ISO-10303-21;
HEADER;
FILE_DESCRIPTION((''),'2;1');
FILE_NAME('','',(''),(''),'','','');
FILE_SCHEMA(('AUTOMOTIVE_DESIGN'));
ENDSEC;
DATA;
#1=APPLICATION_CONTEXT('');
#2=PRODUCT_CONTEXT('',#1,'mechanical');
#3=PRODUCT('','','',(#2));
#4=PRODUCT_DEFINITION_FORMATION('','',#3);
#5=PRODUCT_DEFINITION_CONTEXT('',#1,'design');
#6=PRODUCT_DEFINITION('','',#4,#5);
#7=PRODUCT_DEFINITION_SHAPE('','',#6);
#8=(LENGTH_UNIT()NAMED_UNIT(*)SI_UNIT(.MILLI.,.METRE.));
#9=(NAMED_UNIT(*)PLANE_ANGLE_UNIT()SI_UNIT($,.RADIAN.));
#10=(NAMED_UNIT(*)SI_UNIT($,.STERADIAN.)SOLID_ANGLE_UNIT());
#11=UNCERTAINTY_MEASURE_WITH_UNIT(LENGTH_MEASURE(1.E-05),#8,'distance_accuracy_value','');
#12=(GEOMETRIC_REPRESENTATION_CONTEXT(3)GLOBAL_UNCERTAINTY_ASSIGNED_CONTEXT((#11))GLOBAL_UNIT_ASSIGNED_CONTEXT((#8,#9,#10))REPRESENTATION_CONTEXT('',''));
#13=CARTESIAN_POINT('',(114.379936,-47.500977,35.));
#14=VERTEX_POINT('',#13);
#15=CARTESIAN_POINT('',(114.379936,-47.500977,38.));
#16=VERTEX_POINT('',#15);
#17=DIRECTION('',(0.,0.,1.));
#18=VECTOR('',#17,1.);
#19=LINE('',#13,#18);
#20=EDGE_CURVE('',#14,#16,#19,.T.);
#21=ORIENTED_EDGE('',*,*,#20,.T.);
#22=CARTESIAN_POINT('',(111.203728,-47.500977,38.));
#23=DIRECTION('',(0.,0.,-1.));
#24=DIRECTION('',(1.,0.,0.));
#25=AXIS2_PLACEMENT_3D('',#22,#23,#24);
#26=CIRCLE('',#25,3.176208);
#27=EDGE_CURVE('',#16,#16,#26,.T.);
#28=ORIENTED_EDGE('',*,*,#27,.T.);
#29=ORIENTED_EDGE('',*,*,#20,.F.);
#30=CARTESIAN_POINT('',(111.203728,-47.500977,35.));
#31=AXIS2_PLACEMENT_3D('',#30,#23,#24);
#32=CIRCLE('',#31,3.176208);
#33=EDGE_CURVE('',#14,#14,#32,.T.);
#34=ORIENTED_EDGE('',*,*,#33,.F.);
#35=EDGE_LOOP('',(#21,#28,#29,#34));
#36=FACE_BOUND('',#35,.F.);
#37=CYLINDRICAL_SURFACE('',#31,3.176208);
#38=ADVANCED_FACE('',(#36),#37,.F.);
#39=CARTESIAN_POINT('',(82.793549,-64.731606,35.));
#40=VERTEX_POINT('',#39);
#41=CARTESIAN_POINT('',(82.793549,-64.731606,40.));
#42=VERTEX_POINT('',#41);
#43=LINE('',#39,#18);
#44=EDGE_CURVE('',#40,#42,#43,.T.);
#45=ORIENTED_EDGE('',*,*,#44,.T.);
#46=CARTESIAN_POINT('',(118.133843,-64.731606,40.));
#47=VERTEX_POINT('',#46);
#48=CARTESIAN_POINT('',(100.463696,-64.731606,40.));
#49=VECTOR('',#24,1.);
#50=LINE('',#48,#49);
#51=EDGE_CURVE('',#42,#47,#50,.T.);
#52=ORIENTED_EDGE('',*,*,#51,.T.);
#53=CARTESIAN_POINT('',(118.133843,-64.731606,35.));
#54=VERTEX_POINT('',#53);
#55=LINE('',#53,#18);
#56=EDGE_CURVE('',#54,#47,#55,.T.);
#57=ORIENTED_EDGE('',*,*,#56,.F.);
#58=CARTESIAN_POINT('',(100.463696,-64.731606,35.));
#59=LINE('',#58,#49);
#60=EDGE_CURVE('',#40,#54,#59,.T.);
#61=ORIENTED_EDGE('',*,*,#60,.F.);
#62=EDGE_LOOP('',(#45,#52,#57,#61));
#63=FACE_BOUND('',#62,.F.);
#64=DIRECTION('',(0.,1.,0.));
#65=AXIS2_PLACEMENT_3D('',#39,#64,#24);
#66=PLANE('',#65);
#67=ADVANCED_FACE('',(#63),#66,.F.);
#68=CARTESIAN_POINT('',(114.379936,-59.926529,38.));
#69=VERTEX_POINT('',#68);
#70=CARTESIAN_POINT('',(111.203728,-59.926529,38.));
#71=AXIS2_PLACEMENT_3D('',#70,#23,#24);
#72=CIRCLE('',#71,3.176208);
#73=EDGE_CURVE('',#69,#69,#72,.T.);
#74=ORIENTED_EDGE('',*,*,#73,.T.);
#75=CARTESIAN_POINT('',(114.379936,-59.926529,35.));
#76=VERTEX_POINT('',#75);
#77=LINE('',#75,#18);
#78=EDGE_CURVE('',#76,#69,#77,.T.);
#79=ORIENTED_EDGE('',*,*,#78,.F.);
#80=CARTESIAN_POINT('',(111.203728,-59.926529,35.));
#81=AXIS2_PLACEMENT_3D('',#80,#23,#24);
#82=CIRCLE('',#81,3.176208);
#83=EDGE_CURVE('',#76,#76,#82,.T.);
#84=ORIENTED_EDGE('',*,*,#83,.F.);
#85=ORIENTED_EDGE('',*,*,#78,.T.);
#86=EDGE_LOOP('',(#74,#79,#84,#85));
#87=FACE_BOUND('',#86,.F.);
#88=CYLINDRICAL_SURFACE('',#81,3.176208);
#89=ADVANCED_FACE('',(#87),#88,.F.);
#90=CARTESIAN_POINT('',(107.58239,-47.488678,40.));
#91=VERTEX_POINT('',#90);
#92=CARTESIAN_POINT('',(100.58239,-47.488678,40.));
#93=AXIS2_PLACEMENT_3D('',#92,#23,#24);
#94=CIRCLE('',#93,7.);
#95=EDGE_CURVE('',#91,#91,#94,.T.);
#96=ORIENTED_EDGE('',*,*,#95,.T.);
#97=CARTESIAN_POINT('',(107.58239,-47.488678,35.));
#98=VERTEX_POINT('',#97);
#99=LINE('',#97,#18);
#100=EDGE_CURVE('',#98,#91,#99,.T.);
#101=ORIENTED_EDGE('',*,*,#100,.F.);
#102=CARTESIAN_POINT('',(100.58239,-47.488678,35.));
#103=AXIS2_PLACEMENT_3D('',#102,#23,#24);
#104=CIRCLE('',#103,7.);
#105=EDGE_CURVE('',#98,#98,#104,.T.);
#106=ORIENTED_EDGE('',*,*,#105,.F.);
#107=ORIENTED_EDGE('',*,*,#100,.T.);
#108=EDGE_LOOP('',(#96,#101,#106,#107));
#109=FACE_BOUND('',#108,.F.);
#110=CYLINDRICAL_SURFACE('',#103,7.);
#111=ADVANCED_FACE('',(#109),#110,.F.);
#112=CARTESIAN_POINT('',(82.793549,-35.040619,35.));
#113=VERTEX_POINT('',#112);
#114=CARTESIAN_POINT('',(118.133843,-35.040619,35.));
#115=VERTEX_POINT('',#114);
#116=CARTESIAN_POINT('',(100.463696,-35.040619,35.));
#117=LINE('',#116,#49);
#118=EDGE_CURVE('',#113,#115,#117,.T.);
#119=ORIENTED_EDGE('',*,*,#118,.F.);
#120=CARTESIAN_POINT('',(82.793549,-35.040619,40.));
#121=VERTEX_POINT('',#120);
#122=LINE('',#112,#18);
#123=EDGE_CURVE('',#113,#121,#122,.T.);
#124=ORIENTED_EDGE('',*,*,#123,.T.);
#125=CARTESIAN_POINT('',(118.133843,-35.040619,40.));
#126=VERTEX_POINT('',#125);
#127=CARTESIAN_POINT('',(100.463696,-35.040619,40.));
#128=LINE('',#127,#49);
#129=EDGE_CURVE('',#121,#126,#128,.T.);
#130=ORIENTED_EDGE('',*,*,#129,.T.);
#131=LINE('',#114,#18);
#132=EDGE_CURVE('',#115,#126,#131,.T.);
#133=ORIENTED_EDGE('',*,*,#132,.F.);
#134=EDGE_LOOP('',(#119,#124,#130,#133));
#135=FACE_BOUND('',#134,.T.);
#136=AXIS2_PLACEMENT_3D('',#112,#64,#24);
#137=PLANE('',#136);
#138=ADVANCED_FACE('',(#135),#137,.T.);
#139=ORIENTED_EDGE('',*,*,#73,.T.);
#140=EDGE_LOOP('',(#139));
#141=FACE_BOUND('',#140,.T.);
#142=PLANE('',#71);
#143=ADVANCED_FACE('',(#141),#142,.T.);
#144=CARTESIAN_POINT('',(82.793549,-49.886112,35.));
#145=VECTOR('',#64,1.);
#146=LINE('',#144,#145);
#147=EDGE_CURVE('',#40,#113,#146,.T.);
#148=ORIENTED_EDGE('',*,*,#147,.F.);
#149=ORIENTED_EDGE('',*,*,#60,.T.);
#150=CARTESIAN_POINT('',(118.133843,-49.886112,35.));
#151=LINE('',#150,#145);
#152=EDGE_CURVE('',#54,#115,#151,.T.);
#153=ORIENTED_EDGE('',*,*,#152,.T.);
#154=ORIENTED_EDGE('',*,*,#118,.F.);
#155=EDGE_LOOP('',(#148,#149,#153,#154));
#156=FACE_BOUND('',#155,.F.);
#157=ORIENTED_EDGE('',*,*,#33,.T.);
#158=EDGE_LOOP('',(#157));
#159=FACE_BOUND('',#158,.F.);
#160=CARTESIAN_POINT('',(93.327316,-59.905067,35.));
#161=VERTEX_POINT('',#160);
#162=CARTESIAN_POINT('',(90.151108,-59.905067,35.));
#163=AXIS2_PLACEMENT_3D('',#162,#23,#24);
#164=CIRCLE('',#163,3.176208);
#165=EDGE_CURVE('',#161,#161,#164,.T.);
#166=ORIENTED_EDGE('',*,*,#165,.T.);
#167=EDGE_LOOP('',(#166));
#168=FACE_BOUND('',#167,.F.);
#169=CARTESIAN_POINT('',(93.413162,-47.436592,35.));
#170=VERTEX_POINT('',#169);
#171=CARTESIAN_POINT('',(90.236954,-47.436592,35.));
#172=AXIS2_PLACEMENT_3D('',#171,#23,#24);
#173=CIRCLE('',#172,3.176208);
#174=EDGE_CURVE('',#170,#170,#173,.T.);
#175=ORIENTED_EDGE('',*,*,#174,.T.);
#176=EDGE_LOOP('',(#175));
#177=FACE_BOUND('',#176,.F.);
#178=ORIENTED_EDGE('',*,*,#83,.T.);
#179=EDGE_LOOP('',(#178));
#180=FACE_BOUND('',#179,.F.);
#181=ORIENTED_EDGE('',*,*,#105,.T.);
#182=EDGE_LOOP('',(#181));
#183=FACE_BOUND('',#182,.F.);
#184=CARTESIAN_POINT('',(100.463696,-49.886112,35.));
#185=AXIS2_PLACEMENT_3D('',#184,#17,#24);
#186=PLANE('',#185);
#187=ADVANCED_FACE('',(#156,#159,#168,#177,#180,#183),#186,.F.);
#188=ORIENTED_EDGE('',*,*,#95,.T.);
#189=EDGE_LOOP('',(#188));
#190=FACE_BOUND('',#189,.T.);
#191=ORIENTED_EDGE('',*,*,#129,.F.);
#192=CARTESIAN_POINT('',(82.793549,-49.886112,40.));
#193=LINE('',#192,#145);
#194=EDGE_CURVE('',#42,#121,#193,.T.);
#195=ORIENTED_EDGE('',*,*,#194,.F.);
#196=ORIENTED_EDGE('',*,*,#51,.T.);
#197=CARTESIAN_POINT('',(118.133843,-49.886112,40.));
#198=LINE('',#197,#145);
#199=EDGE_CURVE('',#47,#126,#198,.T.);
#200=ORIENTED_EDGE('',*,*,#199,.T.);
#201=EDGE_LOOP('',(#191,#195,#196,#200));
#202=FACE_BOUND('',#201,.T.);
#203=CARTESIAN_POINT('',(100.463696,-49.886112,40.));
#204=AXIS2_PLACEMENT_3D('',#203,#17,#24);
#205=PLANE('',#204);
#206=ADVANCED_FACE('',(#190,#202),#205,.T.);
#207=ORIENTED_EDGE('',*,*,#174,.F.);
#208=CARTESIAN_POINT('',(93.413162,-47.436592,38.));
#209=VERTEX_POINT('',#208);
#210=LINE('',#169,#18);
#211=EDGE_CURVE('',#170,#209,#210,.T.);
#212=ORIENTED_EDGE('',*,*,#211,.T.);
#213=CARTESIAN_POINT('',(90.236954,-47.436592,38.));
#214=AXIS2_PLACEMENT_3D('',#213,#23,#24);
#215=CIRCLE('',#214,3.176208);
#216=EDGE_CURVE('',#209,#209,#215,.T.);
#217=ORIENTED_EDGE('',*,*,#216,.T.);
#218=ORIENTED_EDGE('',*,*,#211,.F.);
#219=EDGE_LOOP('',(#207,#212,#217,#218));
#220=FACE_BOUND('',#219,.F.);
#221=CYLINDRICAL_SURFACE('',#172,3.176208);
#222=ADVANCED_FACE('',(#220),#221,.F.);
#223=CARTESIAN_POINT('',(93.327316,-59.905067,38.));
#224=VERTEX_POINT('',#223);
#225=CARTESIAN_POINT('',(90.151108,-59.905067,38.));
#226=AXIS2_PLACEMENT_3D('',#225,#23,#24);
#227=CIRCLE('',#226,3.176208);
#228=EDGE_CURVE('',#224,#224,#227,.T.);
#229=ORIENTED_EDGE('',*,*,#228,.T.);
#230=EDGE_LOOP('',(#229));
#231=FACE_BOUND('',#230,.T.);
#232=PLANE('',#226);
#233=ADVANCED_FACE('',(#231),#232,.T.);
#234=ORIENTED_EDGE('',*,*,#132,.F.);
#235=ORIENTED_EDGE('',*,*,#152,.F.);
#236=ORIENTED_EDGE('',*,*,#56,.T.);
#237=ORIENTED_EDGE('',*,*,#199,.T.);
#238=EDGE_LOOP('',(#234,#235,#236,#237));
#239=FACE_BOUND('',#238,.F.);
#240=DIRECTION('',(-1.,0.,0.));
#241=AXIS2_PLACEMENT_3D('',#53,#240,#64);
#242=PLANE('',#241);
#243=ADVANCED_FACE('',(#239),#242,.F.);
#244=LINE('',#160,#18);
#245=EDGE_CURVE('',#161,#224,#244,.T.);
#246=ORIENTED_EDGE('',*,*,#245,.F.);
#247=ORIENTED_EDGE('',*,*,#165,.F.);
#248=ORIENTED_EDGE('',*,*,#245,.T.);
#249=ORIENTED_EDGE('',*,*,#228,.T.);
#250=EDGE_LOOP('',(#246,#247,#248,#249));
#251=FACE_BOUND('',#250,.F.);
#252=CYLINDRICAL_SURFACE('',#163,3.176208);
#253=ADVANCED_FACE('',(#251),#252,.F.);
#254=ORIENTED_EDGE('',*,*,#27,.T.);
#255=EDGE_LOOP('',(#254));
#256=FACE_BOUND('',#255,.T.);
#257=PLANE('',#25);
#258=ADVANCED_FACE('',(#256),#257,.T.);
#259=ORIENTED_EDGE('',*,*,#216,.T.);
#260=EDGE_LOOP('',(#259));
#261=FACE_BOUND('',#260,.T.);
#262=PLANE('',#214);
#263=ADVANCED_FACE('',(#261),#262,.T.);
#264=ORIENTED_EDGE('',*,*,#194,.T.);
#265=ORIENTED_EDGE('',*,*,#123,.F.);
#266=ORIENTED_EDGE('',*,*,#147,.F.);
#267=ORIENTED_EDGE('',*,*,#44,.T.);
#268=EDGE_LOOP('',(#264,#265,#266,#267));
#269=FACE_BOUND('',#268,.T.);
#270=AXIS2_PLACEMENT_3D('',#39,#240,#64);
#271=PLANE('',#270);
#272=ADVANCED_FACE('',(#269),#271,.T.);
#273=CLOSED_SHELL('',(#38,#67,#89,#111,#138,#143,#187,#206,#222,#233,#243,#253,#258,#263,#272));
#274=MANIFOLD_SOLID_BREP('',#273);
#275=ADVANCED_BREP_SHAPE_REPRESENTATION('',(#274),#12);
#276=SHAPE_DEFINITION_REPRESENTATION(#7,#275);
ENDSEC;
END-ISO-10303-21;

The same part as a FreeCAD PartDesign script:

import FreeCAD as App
import Part
import Sketcher
from FreeCAD import Vector

doc = App.newDocument("Part")
body = doc.addObject("PartDesign::Body", "Body")

# Sketch on XY plane
sketch1 = body.newObject("Sketcher::SketchObject", "Sketch")
sketch1.AttachmentSupport = (doc.getObject("XY_Plane"), [""])
sketch1.MapMode = "FlatFace"
sketch1.addGeometry([
    Part.LineSegment(Vector(82.793549, -35.040619, 0), Vector(82.793549, -64.731606, 0)),
    Part.LineSegment(Vector(82.793549, -64.731606, 0), Vector(118.133843, -64.731606, 0)),
    Part.LineSegment(Vector(118.133843, -64.731606, 0), Vector(118.133843, -35.040619, 0)),
    Part.LineSegment(Vector(118.133843, -35.040619, 0), Vector(82.793549, -35.040619, 0)),
], False)
sketch1.addConstraint([
    Sketcher.Constraint("Coincident", 0, 2, 1, 1),
    Sketcher.Constraint("Coincident", 1, 2, 2, 1),
    Sketcher.Constraint("Coincident", 2, 2, 3, 1),
    Sketcher.Constraint("Coincident", 3, 2, 0, 1),
    Sketcher.Constraint("Vertical", 0),
    Sketcher.Constraint("Horizontal", 1),
    Sketcher.Constraint("Vertical", 2),
    Sketcher.Constraint("Horizontal", 3),
    Sketcher.Constraint("DistanceX", 1, 1, 1, 2, 35.340293),
    Sketcher.Constraint("DistanceY", 0, 2, 0, 1, 29.690987),
    Sketcher.Constraint("DistanceX", -1, 1, 0, 2, 82.793549),
    Sketcher.Constraint("DistanceY", 2, 2, -1, 1, 35.040619),
])
pad1 = body.newObject("PartDesign::Pad", "Pad")
pad1.Profile = sketch1
pad1.Length = 5

# Sketch on XY plane
sketch2 = body.newObject("Sketcher::SketchObject", "Sketch001")
sketch2.AttachmentSupport = (doc.getObject("XY_Plane"), [""])
sketch2.MapMode = "FlatFace"
sketch2.addGeometry([
    Part.Circle(Vector(90.151108, -59.905067, 0), Vector(0, 0, 1), 3.176208),
    Part.Circle(Vector(90.236954, -47.436592, 0), Vector(0, 0, 1), 3.176208),
    Part.Circle(Vector(111.203728, -59.926529, 0), Vector(0, 0, 1), 3.176208),
    Part.Circle(Vector(111.203728, -47.500977, 0), Vector(0, 0, 1), 3.176208),
], False)
sketch2.addConstraint([
    Sketcher.Constraint("Equal", 0, 1),
    Sketcher.Constraint("Equal", 1, 2),
    Sketcher.Constraint("Equal", 2, 3),
    Sketcher.Constraint("Vertical", 2, 3, 3, 3),
    Sketcher.Constraint("Diameter", 0, 6.352416),
    Sketcher.Constraint("DistanceY", 1, 3, -1, 1, 47.436592),
    Sketcher.Constraint("DistanceX", -1, 1, 2, 3, 111.203728),
    Sketcher.Constraint("DistanceY", 2, 3, -1, 1, 59.926529),
    Sketcher.Constraint("DistanceX", 0, 3, 2, 3, 21.05262),
    Sketcher.Constraint("DistanceY", 2, 3, 0, 3, 0.021462),
    Sketcher.Constraint("DistanceY", 0, 3, 3, 3, 12.40409),
    Sketcher.Constraint("DistanceX", -1, 1, 1, 3, 90.236954),
])
pocket1 = body.newObject("PartDesign::Pocket", "Pocket")
pocket1.Profile = sketch2
pocket1.Length = 3
pocket1.Reversed = True

# Sketch on XY plane
sketch3 = body.newObject("Sketcher::SketchObject", "Sketch002")
sketch3.AttachmentSupport = (doc.getObject("XY_Plane"), [""])
sketch3.MapMode = "FlatFace"
sketch3.addGeometry(Part.Circle(Vector(100.58239, -47.488678, 0), Vector(0, 0, 1), 7), False)
sketch3.addConstraint([
    Sketcher.Constraint("Diameter", 0, 14.0),
    Sketcher.Constraint("DistanceX", -1, 1, 0, 3, 100.58239),
    Sketcher.Constraint("DistanceY", 0, 3, -1, 1, 47.488678),
])
pocket2 = body.newObject("PartDesign::Pocket", "Pocket001")
pocket2.Profile = sketch3
pocket2.Length = 5
pocket2.Reversed = True
body2 = doc.addObject("PartDesign::Body", "Body001")
doc.recompute()

body.Placement = App.Placement(Vector(0, 0, 35), App.Rotation(Vector(0, 0, 1), 0))
boolean = body2.newObject("PartDesign::Boolean", "Boolean")
boolean.Type = "Fuse"
boolean.addObjects([body])

doc.recompute()
